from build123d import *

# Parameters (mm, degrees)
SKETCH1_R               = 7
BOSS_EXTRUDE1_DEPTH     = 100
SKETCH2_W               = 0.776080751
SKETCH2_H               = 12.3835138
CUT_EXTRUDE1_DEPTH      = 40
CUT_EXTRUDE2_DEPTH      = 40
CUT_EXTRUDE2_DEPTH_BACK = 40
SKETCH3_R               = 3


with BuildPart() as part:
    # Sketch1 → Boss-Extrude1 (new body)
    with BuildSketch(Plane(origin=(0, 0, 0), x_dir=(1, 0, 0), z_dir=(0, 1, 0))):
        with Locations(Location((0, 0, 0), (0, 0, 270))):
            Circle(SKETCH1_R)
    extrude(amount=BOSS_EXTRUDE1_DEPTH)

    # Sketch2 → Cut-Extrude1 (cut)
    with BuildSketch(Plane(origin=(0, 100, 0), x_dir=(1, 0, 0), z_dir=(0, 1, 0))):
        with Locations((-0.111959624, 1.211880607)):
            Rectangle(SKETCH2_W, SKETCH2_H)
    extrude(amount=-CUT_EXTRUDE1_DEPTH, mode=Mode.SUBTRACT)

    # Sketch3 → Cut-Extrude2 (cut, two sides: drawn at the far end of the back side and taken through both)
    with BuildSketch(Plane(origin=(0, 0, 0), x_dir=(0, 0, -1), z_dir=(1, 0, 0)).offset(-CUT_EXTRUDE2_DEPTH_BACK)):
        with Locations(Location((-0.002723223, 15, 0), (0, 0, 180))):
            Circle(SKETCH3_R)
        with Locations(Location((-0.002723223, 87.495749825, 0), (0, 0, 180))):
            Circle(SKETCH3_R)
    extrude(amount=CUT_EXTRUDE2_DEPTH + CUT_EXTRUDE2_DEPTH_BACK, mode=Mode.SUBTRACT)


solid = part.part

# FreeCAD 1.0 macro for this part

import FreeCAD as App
import Part
import Sketcher

V = App.Vector

doc = App.newDocument("Part")
body = doc.addObject("PartDesign::Body", "Body")

# Sketch on XZ plane
sketch1 = body.newObject("Sketcher::SketchObject", "Sketch")
sketch1.AttachmentSupport = (doc.getObject("XZ_Plane"), [""])
sketch1.MapMode = "FlatFace"
sketch1.addGeometry(Part.Circle(V(0, 0, 0), V(0, 0, 1), 7), False)
sketch1.addConstraint(Sketcher.Constraint("Coincident", 0, 3, -1, 1))
sketch1.addConstraint(Sketcher.Constraint("Diameter", 0, 14.0))
pad1 = body.newObject("PartDesign::Pad", "Pad")
pad1.Profile = sketch1
pad1.Length = 100
pad1.Reversed = True

# Sketch on XZ plane
sketch2 = body.newObject("Sketcher::SketchObject", "Sketch001")
sketch2.AttachmentSupport = (doc.getObject("XZ_Plane"), [""])
sketch2.MapMode = "FlatFace"
sketch2.AttachmentOffset = App.Placement(V(0, 0, -100), App.Rotation())
sketch2.addGeometry(Part.LineSegment(V(-0.5, -7.4, 0), V(-0.5, 5, 0)), False)
sketch2.addGeometry(Part.LineSegment(V(-0.5, 5, 0), V(0.3, 5, 0)), False)
sketch2.addGeometry(Part.LineSegment(V(0.3, 5, 0), V(0.3, -7.4, 0)), False)
sketch2.addGeometry(Part.LineSegment(V(0.3, -7.4, 0), V(-0.5, -7.4, 0)), False)
sketch2.addConstraint(Sketcher.Constraint("Coincident", 0, 2, 1, 1))
sketch2.addConstraint(Sketcher.Constraint("Coincident", 1, 2, 2, 1))
sketch2.addConstraint(Sketcher.Constraint("Coincident", 2, 2, 3, 1))
sketch2.addConstraint(Sketcher.Constraint("Coincident", 3, 2, 0, 1))
sketch2.addConstraint(Sketcher.Constraint("Vertical", 0))
sketch2.addConstraint(Sketcher.Constraint("Horizontal", 1))
sketch2.addConstraint(Sketcher.Constraint("Vertical", 2))
sketch2.addConstraint(Sketcher.Constraint("Horizontal", 3))
sketch2.addConstraint(Sketcher.Constraint("DistanceX", 0, 2, -1, 1, 0.5))
sketch2.addConstraint(Sketcher.Constraint("DistanceX", 1, 1, 1, 2, 0.776081))
sketch2.addConstraint(Sketcher.Constraint("DistanceY", 0, 1, 0, 2, 12.383514))
sketch2.addConstraint(Sketcher.Constraint("DistanceY", -1, 1, 0, 2, 4.979876))
pocket1 = body.newObject("PartDesign::Pocket", "Pocket")
pocket1.Profile = sketch2
pocket1.Length = 40
pocket1.Reversed = True

# Sketch on YZ plane
sketch3 = body.newObject("Sketcher::SketchObject", "Sketch002")
sketch3.AttachmentSupport = (doc.getObject("YZ_Plane"), [""])
sketch3.MapMode = "FlatFace"
sketch3.addGeometry(Part.Circle(V(15, 0, 0), V(0, 0, 1), 3), False)
sketch3.addGeometry(Part.Circle(V(87.5, 0, 0), V(0, 0, 1), 3), False)
sketch3.addConstraint(Sketcher.Constraint("Equal", 0, 1))
sketch3.addConstraint(Sketcher.Constraint("Horizontal", 0, 3, 1, 3))
sketch3.addConstraint(Sketcher.Constraint("Diameter", 0, 6.0))
sketch3.addConstraint(Sketcher.Constraint("DistanceX", -1, 1, 0, 3, 15.0))
sketch3.addConstraint(Sketcher.Constraint("DistanceX", -1, 1, 1, 3, 87.49575))
sketch3.addConstraint(Sketcher.Constraint("DistanceY", -1, 1, 0, 3, 0.002723))
pocket2 = body.newObject("PartDesign::Pocket", "Pocket001")
pocket2.Profile = sketch3
pocket2.Type = "ThroughAll"
pocket2.Midplane = True

doc.recompute()
